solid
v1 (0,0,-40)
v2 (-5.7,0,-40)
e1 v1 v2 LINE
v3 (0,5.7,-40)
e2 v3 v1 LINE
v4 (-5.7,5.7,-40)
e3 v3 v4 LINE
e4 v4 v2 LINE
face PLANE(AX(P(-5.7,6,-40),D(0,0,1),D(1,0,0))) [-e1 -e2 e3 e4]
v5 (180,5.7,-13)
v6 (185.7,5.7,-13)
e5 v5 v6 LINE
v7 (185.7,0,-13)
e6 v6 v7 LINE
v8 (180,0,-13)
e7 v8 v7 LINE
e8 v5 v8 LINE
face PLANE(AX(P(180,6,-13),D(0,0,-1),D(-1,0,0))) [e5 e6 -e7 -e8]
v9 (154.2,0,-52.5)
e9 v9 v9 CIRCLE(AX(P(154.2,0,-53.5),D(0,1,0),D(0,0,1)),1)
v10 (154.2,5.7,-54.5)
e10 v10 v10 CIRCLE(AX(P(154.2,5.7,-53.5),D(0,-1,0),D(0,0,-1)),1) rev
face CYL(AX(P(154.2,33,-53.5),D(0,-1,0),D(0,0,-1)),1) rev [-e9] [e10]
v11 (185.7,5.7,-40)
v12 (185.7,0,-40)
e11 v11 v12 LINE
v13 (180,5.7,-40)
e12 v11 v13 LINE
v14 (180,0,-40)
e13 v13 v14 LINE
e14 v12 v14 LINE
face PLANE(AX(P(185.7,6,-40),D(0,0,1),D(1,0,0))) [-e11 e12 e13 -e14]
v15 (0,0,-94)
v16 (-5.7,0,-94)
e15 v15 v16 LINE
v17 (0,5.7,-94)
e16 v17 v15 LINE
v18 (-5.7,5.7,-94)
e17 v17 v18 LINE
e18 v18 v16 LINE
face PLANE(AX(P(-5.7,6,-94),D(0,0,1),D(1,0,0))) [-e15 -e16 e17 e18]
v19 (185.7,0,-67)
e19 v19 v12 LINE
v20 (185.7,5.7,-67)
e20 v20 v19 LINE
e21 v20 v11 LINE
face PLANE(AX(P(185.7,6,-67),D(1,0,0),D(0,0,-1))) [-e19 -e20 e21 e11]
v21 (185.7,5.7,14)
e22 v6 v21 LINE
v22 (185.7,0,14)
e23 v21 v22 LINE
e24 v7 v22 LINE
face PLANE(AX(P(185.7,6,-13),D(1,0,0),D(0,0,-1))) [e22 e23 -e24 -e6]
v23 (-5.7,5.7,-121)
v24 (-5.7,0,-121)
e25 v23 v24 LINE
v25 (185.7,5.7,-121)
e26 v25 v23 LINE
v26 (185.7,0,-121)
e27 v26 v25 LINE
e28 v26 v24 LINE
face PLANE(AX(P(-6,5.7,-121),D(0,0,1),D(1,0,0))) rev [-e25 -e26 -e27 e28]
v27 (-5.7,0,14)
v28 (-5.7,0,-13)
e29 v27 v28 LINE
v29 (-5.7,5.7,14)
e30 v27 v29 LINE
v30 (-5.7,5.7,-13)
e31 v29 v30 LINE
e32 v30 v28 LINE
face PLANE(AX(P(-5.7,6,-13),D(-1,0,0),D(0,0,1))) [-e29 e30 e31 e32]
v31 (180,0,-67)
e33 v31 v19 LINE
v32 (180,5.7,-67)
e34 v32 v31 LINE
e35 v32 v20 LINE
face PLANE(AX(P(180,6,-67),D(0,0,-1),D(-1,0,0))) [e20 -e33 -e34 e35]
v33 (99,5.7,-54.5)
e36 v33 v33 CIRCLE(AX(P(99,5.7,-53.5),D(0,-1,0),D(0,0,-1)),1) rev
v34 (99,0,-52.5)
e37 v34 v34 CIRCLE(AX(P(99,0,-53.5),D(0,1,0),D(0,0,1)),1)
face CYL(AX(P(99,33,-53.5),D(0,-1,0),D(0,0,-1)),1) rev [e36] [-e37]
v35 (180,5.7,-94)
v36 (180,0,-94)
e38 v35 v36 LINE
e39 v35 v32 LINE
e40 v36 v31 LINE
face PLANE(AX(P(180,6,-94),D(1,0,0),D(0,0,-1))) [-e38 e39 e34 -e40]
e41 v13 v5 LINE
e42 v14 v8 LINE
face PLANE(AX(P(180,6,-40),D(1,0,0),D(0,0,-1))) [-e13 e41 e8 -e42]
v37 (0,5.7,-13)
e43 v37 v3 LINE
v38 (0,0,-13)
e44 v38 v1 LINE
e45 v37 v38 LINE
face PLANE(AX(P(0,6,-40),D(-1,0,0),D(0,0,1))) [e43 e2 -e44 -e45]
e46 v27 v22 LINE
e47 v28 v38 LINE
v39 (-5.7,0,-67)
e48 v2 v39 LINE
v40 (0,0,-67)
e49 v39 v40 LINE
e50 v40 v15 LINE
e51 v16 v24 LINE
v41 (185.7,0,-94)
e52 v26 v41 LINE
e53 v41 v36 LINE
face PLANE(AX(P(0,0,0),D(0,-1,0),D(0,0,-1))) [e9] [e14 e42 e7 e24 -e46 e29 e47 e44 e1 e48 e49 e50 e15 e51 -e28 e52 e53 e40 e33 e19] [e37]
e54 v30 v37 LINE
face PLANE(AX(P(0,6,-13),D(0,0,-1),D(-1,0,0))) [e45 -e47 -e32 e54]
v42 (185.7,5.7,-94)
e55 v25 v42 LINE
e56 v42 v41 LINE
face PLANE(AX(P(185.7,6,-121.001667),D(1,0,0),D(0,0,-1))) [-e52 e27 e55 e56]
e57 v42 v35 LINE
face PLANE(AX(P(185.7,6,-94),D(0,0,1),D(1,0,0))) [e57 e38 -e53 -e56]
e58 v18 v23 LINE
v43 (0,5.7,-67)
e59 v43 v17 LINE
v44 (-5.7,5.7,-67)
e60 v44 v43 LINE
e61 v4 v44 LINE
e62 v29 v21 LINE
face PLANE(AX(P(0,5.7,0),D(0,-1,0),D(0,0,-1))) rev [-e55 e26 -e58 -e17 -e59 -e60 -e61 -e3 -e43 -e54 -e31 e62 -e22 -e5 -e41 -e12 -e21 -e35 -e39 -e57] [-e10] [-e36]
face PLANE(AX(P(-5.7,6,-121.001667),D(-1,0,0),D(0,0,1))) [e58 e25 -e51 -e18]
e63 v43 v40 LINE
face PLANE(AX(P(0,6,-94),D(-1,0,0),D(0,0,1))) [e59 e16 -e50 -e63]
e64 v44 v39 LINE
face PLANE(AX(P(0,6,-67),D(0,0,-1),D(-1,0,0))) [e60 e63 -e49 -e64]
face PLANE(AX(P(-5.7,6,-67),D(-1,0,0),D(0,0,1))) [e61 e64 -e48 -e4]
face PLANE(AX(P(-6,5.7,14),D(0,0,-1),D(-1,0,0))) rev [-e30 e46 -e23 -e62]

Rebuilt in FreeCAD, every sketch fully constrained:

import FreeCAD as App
import Part
import Sketcher

V = App.Vector


def add_polygon(sketch, points):
    """Adds a closed chain of lines whose ends are joined by coincident constraints."""
    first, n = sketch.GeometryCount, len(points)
    for a, b in zip(points, points[1:] + points[:1]):
        sketch.addGeometry(Part.LineSegment(App.Vector(*a, 0), App.Vector(*b, 0)), False)
    for i in range(n):
        sketch.addConstraint(Sketcher.Constraint("Coincident", first + i, 2, first + (i + 1) % n, 1))

doc = App.newDocument("Part")
body = doc.addObject("PartDesign::Body", "Body")

sketch1 = doc.addObject("Sketcher::SketchObject", "Sketch")
body.addObject(sketch1)
sketch1.AttachmentSupport = (doc.XZ_Plane, [""])
sketch1.MapMode = "FlatFace"
add_polygon(sketch1, [(-6, -121), (-6, 14), (186, 14), (186, -121)])
sketch1.addConstraint([
    Sketcher.Constraint("Vertical", 0),
    Sketcher.Constraint("Horizontal", 1),
    Sketcher.Constraint("Vertical", 2),
    Sketcher.Constraint("Horizontal", 3),
    Sketcher.Constraint("DistanceX", 1, 1, 1, 2, 192.0),
    Sketcher.Constraint("DistanceY", 0, 1, 0, 2, 135.0),
    Sketcher.Constraint("DistanceX", 0, 2, -1, 1, 6.0),
    Sketcher.Constraint("DistanceY", -1, 1, 0, 2, 14.0),
])
pad1 = doc.addObject("PartDesign::Pad", "Pad")
body.addObject(pad1)
pad1.Profile = sketch1
pad1.Length = 5.7
pad1.Reversed = True

sketch2 = doc.addObject("Sketcher::SketchObject", "Sketch001")
body.addObject(sketch2)
sketch2.AttachmentSupport = (doc.XZ_Plane, [""])
sketch2.MapMode = "FlatFace"
add_polygon(sketch2, [(-5.7, -94), (-5.7, -121.001667), (-9.7, -121.001667), (-9.7, 17), (-5.7, 17), (-5.7, -13), (0, -13), (0, -40), (-5.7, -40), (-5.7, -67), (0, -67), (0, -94)])
add_polygon(sketch2, [(189.7, -121.001667), (185.7, -121.001667), (185.7, -94), (180, -94), (180, -67), (185.7, -67), (185.7, -40), (180, -40), (180, -13), (185.7, -13), (185.7, 17), (189.7, 17)])
sketch2.addConstraint([
    Sketcher.Constraint("Vertical", 0),
    Sketcher.Constraint("Horizontal", 1),
    Sketcher.Constraint("Vertical", 2),
    Sketcher.Constraint("Horizontal", 3),
    Sketcher.Constraint("Vertical", 4),
    Sketcher.Constraint("Horizontal", 5),
    Sketcher.Constraint("Vertical", 6),
    Sketcher.Constraint("Horizontal", 7),
    Sketcher.Constraint("Vertical", 8),
    Sketcher.Constraint("Horizontal", 9),
    Sketcher.Constraint("Vertical", 10),
    Sketcher.Constraint("Horizontal", 11),
    Sketcher.Constraint("Horizontal", 12),
    Sketcher.Constraint("Vertical", 13),
    Sketcher.Constraint("Horizontal", 14),
    Sketcher.Constraint("Vertical", 15),
    Sketcher.Constraint("Horizontal", 16),
    Sketcher.Constraint("Vertical", 17),
    Sketcher.Constraint("Horizontal", 18),
    Sketcher.Constraint("Vertical", 19),
    Sketcher.Constraint("Horizontal", 20),
    Sketcher.Constraint("Vertical", 21),
    Sketcher.Constraint("Horizontal", 22),
    Sketcher.Constraint("Vertical", 23),
    Sketcher.Constraint("PointOnObject", 5, 2, -2),
    Sketcher.Constraint("PointOnObject", 9, 2, -2),
    Sketcher.Constraint("Horizontal", 1, 2, 12, 2),
    Sketcher.Constraint("Horizontal", 11, 2, 13, 2),
    Sketcher.Constraint("Horizontal", 9, 2, 15, 2),
    Sketcher.Constraint("Horizontal", 7, 2, 17, 2),
    Sketcher.Constraint("Horizontal", 5, 2, 19, 2),
    Sketcher.Constraint("Horizontal", 3, 2, 21, 2),
    Sketcher.Constraint("Vertical", 0, 2, 3, 2),
    Sketcher.Constraint("Vertical", 4, 2, 7, 2),
    Sketcher.Constraint("Vertical", 13, 2, 16, 2),
    Sketcher.Constraint("Vertical", 15, 2, 18, 2),
    Sketcher.Constraint("Vertical", 17, 2, 20, 2),
    Sketcher.Constraint("Equal", 3, 12),
    Sketcher.Constraint("Equal", 11, 14),
    Sketcher.Constraint("Equal", 6, 8),
    Sketcher.Constraint("Equal", 8, 10),
    Sketcher.Constraint("DistanceX", 1, 2, 1, 1, 4.0),
    Sketcher.Constraint("DistanceY", 4, 2, 4, 1, 30.0),
    Sketcher.Constraint("DistanceY", 6, 2, 6, 1, 27.0),
    Sketcher.Constraint("DistanceX", 5, 1, 5, 2, 5.7),
    Sketcher.Constraint("DistanceY", -1, 1, 2, 2, 17.0),
    Sketcher.Constraint("DistanceX", -1, 1, 14, 2, 180.0),
    Sketcher.Constraint("DistanceY", 0, 2, 0, 1, 27.001667),
])
pocket1 = doc.addObject("PartDesign::Pocket", "Pocket")
body.addObject(pocket1)
pocket1.Profile = sketch2
pocket1.Length = 6

sketch3 = doc.addObject("Sketcher::SketchObject", "Sketch002")
body.addObject(sketch3)
sketch3.AttachmentSupport = (doc.XZ_Plane, [""])
sketch3.MapMode = "FlatFace"
sketch3.addGeometry([
    Part.Circle(V(99, -53.5, 0), V(0, 0, 1), 1),
    Part.Circle(V(154.2, -53.5, 0), V(0, 0, 1), 1),
], False)
sketch3.addConstraint([
    Sketcher.Constraint("Equal", 0, 1),
    Sketcher.Constraint("Horizontal", 0, 3, 1, 3),
    Sketcher.Constraint("Diameter", 0, 2.0),
    Sketcher.Constraint("DistanceX", -1, 1, 0, 3, 99.0),
    Sketcher.Constraint("DistanceY", 0, 3, -1, 1, 53.5),
    Sketcher.Constraint("DistanceX", -1, 1, 1, 3, 154.2),
])
pocket2 = doc.addObject("PartDesign::Pocket", "Pocket001")
body.addObject(pocket2)
pocket2.Profile = sketch3
pocket2.Length = 33

doc.recompute()
